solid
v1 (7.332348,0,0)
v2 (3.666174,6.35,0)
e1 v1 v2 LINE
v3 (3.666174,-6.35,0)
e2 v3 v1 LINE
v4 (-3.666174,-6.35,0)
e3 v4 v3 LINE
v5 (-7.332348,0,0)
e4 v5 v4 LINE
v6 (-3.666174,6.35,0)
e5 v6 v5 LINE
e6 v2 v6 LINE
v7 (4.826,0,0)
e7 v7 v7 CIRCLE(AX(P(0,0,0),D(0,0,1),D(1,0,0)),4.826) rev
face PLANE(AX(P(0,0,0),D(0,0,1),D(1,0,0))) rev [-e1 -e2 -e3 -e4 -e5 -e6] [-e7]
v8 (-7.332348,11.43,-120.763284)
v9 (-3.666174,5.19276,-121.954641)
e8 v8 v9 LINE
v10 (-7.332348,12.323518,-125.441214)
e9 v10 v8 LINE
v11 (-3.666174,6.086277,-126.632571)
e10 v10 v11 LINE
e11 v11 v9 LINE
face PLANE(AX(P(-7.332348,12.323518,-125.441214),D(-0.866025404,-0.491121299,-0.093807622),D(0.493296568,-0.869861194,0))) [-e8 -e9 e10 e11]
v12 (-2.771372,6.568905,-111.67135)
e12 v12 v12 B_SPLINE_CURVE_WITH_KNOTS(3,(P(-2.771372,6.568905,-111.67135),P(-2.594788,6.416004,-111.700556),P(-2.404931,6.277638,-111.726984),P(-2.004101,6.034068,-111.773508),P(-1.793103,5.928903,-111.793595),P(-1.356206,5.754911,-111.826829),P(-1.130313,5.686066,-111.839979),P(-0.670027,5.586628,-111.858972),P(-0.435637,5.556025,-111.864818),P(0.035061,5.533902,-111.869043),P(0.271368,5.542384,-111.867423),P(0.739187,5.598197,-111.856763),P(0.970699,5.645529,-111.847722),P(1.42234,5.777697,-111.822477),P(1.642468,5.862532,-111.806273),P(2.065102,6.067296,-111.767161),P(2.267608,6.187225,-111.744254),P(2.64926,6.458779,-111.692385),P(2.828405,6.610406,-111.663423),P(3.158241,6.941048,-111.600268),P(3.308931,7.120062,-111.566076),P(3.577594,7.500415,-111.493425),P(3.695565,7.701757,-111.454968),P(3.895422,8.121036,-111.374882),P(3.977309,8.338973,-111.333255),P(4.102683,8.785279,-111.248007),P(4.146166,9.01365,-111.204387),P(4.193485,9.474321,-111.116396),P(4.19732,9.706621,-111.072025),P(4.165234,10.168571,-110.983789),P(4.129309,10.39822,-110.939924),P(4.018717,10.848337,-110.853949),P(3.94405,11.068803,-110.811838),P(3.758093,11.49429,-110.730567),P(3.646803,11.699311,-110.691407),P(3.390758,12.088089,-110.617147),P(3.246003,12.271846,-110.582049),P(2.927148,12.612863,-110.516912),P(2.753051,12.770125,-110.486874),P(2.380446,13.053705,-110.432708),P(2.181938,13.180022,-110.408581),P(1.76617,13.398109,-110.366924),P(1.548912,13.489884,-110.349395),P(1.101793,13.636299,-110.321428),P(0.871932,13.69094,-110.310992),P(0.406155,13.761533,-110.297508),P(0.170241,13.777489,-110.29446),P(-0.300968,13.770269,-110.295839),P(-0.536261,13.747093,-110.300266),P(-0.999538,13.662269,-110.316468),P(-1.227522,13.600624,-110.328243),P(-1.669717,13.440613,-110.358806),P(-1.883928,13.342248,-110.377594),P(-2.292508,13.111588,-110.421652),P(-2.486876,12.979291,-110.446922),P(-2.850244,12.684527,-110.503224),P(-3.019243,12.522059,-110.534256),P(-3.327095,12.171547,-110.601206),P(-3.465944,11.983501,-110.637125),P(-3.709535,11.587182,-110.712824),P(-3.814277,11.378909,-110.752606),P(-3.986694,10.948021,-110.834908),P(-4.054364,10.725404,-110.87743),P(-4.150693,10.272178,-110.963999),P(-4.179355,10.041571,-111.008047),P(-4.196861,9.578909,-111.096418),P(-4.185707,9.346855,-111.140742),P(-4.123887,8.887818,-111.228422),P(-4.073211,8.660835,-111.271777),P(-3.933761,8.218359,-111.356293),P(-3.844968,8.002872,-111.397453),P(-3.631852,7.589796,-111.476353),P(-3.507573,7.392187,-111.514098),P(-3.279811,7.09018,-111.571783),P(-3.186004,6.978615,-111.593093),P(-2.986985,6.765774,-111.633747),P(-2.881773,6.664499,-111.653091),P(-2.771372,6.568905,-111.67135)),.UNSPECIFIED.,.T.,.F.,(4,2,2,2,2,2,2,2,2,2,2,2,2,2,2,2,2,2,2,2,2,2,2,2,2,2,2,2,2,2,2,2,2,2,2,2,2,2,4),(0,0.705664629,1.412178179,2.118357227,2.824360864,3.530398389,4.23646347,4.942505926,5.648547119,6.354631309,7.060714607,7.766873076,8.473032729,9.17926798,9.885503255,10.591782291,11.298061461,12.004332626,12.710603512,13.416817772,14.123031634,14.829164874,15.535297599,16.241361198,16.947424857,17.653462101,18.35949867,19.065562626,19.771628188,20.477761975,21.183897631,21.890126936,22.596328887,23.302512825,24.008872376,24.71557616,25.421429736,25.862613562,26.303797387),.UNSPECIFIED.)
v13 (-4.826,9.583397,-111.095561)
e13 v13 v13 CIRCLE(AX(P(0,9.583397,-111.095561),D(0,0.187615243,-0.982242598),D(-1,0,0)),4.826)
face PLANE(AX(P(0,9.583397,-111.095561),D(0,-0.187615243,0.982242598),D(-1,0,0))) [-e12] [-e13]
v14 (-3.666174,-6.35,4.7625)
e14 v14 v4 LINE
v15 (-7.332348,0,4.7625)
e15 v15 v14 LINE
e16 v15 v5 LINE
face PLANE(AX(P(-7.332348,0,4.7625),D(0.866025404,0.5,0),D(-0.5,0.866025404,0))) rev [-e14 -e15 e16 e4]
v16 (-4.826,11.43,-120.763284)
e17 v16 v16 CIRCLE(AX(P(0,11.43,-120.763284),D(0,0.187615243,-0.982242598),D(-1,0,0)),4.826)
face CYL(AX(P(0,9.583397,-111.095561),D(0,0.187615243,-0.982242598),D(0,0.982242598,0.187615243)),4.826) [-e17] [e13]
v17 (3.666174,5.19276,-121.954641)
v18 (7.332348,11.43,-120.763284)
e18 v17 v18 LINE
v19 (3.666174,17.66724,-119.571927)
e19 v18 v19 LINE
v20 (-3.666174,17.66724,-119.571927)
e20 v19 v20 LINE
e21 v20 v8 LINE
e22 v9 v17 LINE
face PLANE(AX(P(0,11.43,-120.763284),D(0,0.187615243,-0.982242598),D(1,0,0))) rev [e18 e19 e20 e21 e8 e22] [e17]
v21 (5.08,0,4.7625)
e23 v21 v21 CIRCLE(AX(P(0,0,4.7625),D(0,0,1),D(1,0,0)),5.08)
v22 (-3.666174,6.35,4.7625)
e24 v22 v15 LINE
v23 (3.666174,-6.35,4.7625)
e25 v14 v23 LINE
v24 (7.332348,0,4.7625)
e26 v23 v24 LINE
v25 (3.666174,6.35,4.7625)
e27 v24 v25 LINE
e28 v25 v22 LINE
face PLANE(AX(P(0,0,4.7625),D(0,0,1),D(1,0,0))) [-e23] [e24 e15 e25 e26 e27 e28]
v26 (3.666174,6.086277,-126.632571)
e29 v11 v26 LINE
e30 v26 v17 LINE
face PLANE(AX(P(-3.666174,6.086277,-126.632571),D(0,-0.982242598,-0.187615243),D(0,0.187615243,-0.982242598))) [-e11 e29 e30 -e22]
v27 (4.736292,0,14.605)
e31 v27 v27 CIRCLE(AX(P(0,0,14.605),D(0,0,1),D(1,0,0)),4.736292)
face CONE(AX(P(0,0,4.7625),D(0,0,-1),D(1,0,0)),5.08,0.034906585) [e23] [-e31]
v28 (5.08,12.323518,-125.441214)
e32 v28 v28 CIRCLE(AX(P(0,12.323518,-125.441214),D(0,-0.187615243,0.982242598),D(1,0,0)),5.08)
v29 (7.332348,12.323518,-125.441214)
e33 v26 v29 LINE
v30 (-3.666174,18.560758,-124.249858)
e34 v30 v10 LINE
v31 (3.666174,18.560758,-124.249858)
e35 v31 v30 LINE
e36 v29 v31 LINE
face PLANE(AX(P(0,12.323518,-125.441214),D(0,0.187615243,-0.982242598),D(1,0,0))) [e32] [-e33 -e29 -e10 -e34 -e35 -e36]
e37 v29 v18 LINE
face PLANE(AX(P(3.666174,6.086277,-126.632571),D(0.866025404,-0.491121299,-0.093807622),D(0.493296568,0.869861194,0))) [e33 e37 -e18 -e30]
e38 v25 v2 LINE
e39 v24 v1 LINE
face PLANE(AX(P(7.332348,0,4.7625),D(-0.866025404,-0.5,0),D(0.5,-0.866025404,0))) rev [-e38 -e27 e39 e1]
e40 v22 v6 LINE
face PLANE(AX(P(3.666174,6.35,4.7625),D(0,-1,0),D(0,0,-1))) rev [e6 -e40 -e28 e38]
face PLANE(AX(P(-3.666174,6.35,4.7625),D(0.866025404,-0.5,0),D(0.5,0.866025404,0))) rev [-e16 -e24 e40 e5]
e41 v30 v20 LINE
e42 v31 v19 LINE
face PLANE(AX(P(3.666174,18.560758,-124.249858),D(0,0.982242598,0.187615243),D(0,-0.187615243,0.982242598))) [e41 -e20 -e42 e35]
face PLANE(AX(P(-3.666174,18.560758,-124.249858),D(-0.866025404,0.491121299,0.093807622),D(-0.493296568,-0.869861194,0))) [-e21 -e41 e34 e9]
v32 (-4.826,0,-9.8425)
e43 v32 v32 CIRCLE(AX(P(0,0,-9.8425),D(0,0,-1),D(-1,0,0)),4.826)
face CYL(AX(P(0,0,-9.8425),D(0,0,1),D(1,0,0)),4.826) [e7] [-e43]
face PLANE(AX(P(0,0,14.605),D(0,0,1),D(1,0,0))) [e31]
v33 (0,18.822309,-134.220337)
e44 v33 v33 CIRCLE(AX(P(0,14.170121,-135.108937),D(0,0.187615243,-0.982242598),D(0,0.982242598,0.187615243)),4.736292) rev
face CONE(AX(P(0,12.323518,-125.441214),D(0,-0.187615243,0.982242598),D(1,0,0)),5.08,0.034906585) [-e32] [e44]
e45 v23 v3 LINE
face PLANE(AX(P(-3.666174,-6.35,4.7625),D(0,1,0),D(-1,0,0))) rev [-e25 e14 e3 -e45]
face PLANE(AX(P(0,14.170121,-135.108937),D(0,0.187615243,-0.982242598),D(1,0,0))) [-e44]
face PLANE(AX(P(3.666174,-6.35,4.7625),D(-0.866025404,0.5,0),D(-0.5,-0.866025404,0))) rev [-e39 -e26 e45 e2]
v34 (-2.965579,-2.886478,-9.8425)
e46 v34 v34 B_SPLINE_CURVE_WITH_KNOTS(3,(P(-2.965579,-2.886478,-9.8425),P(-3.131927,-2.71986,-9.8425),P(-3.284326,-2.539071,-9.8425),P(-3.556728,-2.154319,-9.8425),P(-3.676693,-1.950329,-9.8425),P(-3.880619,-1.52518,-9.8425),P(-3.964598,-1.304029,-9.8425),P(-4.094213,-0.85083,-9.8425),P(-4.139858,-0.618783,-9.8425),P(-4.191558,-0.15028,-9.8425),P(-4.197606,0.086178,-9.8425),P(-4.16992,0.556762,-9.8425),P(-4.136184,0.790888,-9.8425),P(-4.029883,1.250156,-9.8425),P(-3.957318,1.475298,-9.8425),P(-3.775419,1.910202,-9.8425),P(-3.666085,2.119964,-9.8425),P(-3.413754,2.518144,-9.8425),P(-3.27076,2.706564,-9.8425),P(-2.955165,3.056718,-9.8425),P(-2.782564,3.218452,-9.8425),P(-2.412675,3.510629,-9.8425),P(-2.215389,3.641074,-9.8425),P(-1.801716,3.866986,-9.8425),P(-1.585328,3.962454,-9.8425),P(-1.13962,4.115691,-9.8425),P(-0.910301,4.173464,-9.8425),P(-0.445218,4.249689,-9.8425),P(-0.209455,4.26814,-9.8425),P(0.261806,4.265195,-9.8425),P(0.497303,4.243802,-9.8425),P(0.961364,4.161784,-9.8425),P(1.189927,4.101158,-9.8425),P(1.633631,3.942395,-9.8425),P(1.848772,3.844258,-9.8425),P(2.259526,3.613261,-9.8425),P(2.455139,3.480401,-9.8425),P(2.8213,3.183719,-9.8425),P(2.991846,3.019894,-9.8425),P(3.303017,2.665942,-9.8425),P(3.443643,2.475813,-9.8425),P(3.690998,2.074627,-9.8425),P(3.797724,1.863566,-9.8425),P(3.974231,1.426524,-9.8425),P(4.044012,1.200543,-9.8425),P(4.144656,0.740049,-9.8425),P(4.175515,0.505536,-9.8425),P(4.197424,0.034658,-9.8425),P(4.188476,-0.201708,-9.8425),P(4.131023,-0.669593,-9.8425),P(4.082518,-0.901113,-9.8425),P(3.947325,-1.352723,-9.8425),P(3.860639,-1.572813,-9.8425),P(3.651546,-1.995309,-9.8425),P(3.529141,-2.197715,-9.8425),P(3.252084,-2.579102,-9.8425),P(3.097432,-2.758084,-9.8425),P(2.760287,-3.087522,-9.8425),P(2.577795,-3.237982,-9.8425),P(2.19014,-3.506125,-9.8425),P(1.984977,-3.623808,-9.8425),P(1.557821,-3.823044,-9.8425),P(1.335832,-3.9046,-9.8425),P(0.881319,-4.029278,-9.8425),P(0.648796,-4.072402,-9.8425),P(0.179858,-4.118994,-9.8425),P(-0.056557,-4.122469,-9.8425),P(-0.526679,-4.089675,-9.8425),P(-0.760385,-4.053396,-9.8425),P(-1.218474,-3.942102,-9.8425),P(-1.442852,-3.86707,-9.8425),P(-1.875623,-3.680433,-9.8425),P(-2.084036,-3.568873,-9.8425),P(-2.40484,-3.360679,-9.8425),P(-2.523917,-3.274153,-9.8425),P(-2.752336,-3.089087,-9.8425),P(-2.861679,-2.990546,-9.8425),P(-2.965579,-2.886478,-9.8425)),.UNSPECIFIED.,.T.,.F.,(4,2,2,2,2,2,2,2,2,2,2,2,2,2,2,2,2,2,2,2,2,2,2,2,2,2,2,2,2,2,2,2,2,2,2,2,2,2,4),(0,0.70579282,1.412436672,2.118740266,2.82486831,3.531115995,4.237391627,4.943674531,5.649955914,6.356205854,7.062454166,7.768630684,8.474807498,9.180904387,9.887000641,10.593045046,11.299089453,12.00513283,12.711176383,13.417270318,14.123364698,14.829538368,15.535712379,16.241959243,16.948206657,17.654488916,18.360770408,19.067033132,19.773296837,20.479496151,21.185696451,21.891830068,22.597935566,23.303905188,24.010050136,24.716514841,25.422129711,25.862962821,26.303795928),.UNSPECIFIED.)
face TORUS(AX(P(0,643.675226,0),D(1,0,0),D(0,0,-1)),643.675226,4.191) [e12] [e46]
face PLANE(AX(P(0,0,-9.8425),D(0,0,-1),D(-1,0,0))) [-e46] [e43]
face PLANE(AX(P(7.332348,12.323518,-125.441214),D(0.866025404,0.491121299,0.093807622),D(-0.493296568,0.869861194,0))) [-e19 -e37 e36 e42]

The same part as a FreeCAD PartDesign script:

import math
import FreeCAD as App
import Part
import Sketcher
Q = App.Units.Quantity


def add_polygon(sketch, points):
    """Adds a closed chain of lines whose ends are joined by coincident constraints."""
    first, n = sketch.GeometryCount, len(points)
    for a, b in zip(points, points[1:] + points[:1]):
        sketch.addGeometry(Part.LineSegment(App.Vector(*a, 0), App.Vector(*b, 0)), False)
    for i in range(n):
        sketch.addConstraint(Sketcher.Constraint("Coincident", first + i, 2, first + (i + 1) % n, 1))

doc = App.newDocument("Part")
body = doc.addObject("PartDesign::Body", "Body")

# Sketch on XY plane
sketch1 = body.newObject("Sketcher::SketchObject", "Sketch")
sketch1.AttachmentSupport = (doc.getObject("XY_Plane"), [""])
sketch1.MapMode = "FlatFace"
sketch1.addGeometry(Part.Circle(App.Vector(0, 0, 0), App.Vector(0, 0, 1), 4.2), False)
sketch1.addConstraint([
    Sketcher.Constraint("Coincident", 0, 3, -1, 1),
    Sketcher.Constraint("Diameter", 0, Q("0.33 in")),
])

# Sketch on YZ plane
sketch2 = body.newObject("Sketcher::SketchObject", "Sketch001")
sketch2.AttachmentSupport = (doc.getObject("YZ_Plane"), [""])
sketch2.MapMode = "FlatFace"
sketch2.addGeometry(Part.ArcOfCircle(Part.Circle(App.Vector(644, 0, 0), App.Vector(0, 0, 1), 644), math.radians(-180), math.radians(-169.19)), False)
sketch2.addConstraint([
    Sketcher.Constraint("Coincident", 0, 1, -1, 1),
    Sketcher.Constraint("PointOnObject", 0, 3, -1),
    Sketcher.Constraint("DistanceX", -1, 1, 0, 2, Q("0.45 in")),
    Sketcher.Constraint("Radius", 0, Q("643.675226 mm")),
])
doc.recompute()

additivepipe = body.newObject("PartDesign::AdditivePipe", "AdditivePipe")
additivepipe.Profile = sketch1
additivepipe.Spine = (sketch2, ["Edge1"])

# Sketch on XY plane
sketch3 = body.newObject("Sketcher::SketchObject", "Sketch002")
sketch3.AttachmentSupport = (doc.getObject("XY_Plane"), [""])
sketch3.MapMode = "FlatFace"
add_polygon(sketch3, [(7, 0), (4, 6), (-4, 6), (-7, 0), (-4, -6), (4, -6)])  # lines 0-5
sketch3.addConstraint([
    Sketcher.Constraint("Horizontal", 1),
    Sketcher.Constraint("Horizontal", 4),
    Sketcher.Constraint("Symmetric", 0, 2, 3, 2, -1, 1),
    Sketcher.Constraint("Symmetric", 2, 2, 5, 2, -1, 1),
    Sketcher.Constraint("PointOnObject", 2, 2, -1),
    Sketcher.Constraint("Parallel", 2, 5),
    Sketcher.Constraint("Vertical", 1, 2, 3, 2),
    Sketcher.Constraint("Angle", 0, Q("120 deg")),
    Sketcher.Constraint("DistanceY", 3, 2, 1, 2, Q("0.5 in")),
    Sketcher.Constraint("DistanceX", 1, 2, 1, 1, Q("7.332348 mm")),
])
pad1 = body.newObject("PartDesign::Pad", "Pad")
pad1.Profile = sketch3
pad1.Length = Q("0.1875 in")

# Sketch on XY plane
sketch4 = body.newObject("Sketcher::SketchObject", "Sketch003")
sketch4.AttachmentSupport = (doc.getObject("XY_Plane"), [""])
sketch4.MapMode = "FlatFace"
sketch4.AttachmentOffset = App.Placement(App.Vector(0, 0, 0.1875 * 25.4), App.Rotation())
sketch4.addGeometry(Part.Circle(App.Vector(0, 0, 0), App.Vector(0, 0, 1), 5), False)
sketch4.addConstraint([
    Sketcher.Constraint("Coincident", 0, 3, -1, 1),
    Sketcher.Constraint("Diameter", 0, Q("0.4 in")),
])
pad2 = body.newObject("PartDesign::Pad", "Pad001")
pad2.Profile = sketch4
pad2.Length = Q("0.3875 in")
pad2.TaperAngle = -2

# Sketch on XY plane
sketch5 = body.newObject("Sketcher::SketchObject", "Sketch004")
sketch5.AttachmentSupport = (doc.getObject("XY_Plane"), [""])
sketch5.MapMode = "FlatFace"
sketch5.addGeometry(Part.Circle(App.Vector(0, 0, 0), App.Vector(0, 0, 1), 4.8), False)
sketch5.addConstraint([
    Sketcher.Constraint("Coincident", 0, 3, -1, 1),
    Sketcher.Constraint("Diameter", 0, Q("0.38 in")),
])
pad3 = body.newObject("PartDesign::Pad", "Pad002")
pad3.Profile = sketch5
pad3.Length = Q("0.3875 in")
pad3.Reversed = True
doc.recompute()

datumplane = body.newObject("PartDesign::Plane", "DatumPlane")
datumplane.Placement = App.Placement(App.Vector(0, 5.715, -60.381642), App.Rotation(App.Vector(0, -0.995550752, -0.09422686), App.Vector(-0.999999999, 0, 0), App.Vector(0, 0.09422686, -0.995550751), "ZXY"))
mirrored = body.newObject("PartDesign::Mirrored", "Mirrored")
mirrored.Originals = [pad1, pad2, pad3]
mirrored.MirrorPlane = (datumplane, [""])
body.Tip = mirrored

doc.recompute()
